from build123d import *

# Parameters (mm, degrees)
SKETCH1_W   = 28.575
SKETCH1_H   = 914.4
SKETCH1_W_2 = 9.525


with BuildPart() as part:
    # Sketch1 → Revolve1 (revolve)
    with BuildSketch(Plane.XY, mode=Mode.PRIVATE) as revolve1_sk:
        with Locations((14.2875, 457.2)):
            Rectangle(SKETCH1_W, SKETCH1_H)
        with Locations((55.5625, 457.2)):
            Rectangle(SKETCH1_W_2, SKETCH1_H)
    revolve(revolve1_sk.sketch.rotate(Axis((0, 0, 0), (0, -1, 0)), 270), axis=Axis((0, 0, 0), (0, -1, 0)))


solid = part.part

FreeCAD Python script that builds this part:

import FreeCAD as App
import Part
import Sketcher

V = App.Vector
Q = App.Units.Quantity


def add_polygon(sketch, points):
    """Adds a closed chain of lines whose ends are joined by coincident constraints."""
    first, n = sketch.GeometryCount, len(points)
    for a, b in zip(points, points[1:] + points[:1]):
        sketch.addGeometry(Part.LineSegment(App.Vector(*a, 0), App.Vector(*b, 0)), False)
    for i in range(n):
        sketch.addConstraint(Sketcher.Constraint("Coincident", first + i, 2, first + (i + 1) % n, 1))

doc = App.newDocument("Part")
params = doc.addObject("Spreadsheet::Sheet", "Params")
for row, (alias, value) in enumerate([
    ("sketch1_height", "36 in"),
    ("sketch1_width", "1.125 in"),
    ("sketch1_width2", "0.375 in"),
    ("revolution_angle", "360 deg"),
], start=1):
    params.set(f"A{row}", alias)
    params.set(f"B{row}", "=" + value)
    params.setAlias(f"B{row}", alias)

body = doc.addObject("PartDesign::Body", "Body")
body.AllowCompound = True

# Sketch on XY plane
sketch1 = body.newObject("Sketcher::SketchObject", "Sketch")
sketch1.AttachmentSupport = (doc.getObject("XY_Plane"), [""])
sketch1.MapMode = "FlatFace"
add_polygon(sketch1, [(0, 914), (0, 0), (29, 0), (29, 914)])  # lines 0-3
add_polygon(sketch1, [(51, 914), (51, 0), (60, 0), (60, 914)])  # lines 4-7
sketch1.addConstraint([
    Sketcher.Constraint("Vertical", 0),
    Sketcher.Constraint("Horizontal", 1),
    Sketcher.Constraint("Vertical", 2),
    Sketcher.Constraint("Horizontal", 3),
    Sketcher.Constraint("Vertical", 4),
    Sketcher.Constraint("Horizontal", 5),
    Sketcher.Constraint("Vertical", 6),
    Sketcher.Constraint("Horizontal", 7),
    Sketcher.Constraint("Coincident", 0, 2, -1, 1),
    Sketcher.Constraint("PointOnObject", 4, 2, -1),
    Sketcher.Constraint("Horizontal", 3, 2, 6, 2),
    Sketcher.Constraint("DistanceY", 0, 2, 0, 1, Q("36 in")),
    Sketcher.Constraint("DistanceX", -1, 1, 4, 2, Q("2 in")),
    Sketcher.Constraint("DistanceX", 1, 1, 1, 2, Q("1.125 in")),
    Sketcher.Constraint("DistanceX", 5, 1, 5, 2, Q("0.375 in")),
])
sketch1.setExpression("Constraints[19]", "Params.sketch1_height")
sketch1.setExpression("Constraints[21]", "Params.sketch1_width")
sketch1.setExpression("Constraints[22]", "Params.sketch1_width2")
revolution = body.newObject("PartDesign::Revolution", "Revolution")
revolution.Profile = sketch1
revolution.ReferenceAxis = (sketch1, ["V_Axis"])
revolution.setExpression("Angle", "Params.revolution_angle")

doc.recompute()
